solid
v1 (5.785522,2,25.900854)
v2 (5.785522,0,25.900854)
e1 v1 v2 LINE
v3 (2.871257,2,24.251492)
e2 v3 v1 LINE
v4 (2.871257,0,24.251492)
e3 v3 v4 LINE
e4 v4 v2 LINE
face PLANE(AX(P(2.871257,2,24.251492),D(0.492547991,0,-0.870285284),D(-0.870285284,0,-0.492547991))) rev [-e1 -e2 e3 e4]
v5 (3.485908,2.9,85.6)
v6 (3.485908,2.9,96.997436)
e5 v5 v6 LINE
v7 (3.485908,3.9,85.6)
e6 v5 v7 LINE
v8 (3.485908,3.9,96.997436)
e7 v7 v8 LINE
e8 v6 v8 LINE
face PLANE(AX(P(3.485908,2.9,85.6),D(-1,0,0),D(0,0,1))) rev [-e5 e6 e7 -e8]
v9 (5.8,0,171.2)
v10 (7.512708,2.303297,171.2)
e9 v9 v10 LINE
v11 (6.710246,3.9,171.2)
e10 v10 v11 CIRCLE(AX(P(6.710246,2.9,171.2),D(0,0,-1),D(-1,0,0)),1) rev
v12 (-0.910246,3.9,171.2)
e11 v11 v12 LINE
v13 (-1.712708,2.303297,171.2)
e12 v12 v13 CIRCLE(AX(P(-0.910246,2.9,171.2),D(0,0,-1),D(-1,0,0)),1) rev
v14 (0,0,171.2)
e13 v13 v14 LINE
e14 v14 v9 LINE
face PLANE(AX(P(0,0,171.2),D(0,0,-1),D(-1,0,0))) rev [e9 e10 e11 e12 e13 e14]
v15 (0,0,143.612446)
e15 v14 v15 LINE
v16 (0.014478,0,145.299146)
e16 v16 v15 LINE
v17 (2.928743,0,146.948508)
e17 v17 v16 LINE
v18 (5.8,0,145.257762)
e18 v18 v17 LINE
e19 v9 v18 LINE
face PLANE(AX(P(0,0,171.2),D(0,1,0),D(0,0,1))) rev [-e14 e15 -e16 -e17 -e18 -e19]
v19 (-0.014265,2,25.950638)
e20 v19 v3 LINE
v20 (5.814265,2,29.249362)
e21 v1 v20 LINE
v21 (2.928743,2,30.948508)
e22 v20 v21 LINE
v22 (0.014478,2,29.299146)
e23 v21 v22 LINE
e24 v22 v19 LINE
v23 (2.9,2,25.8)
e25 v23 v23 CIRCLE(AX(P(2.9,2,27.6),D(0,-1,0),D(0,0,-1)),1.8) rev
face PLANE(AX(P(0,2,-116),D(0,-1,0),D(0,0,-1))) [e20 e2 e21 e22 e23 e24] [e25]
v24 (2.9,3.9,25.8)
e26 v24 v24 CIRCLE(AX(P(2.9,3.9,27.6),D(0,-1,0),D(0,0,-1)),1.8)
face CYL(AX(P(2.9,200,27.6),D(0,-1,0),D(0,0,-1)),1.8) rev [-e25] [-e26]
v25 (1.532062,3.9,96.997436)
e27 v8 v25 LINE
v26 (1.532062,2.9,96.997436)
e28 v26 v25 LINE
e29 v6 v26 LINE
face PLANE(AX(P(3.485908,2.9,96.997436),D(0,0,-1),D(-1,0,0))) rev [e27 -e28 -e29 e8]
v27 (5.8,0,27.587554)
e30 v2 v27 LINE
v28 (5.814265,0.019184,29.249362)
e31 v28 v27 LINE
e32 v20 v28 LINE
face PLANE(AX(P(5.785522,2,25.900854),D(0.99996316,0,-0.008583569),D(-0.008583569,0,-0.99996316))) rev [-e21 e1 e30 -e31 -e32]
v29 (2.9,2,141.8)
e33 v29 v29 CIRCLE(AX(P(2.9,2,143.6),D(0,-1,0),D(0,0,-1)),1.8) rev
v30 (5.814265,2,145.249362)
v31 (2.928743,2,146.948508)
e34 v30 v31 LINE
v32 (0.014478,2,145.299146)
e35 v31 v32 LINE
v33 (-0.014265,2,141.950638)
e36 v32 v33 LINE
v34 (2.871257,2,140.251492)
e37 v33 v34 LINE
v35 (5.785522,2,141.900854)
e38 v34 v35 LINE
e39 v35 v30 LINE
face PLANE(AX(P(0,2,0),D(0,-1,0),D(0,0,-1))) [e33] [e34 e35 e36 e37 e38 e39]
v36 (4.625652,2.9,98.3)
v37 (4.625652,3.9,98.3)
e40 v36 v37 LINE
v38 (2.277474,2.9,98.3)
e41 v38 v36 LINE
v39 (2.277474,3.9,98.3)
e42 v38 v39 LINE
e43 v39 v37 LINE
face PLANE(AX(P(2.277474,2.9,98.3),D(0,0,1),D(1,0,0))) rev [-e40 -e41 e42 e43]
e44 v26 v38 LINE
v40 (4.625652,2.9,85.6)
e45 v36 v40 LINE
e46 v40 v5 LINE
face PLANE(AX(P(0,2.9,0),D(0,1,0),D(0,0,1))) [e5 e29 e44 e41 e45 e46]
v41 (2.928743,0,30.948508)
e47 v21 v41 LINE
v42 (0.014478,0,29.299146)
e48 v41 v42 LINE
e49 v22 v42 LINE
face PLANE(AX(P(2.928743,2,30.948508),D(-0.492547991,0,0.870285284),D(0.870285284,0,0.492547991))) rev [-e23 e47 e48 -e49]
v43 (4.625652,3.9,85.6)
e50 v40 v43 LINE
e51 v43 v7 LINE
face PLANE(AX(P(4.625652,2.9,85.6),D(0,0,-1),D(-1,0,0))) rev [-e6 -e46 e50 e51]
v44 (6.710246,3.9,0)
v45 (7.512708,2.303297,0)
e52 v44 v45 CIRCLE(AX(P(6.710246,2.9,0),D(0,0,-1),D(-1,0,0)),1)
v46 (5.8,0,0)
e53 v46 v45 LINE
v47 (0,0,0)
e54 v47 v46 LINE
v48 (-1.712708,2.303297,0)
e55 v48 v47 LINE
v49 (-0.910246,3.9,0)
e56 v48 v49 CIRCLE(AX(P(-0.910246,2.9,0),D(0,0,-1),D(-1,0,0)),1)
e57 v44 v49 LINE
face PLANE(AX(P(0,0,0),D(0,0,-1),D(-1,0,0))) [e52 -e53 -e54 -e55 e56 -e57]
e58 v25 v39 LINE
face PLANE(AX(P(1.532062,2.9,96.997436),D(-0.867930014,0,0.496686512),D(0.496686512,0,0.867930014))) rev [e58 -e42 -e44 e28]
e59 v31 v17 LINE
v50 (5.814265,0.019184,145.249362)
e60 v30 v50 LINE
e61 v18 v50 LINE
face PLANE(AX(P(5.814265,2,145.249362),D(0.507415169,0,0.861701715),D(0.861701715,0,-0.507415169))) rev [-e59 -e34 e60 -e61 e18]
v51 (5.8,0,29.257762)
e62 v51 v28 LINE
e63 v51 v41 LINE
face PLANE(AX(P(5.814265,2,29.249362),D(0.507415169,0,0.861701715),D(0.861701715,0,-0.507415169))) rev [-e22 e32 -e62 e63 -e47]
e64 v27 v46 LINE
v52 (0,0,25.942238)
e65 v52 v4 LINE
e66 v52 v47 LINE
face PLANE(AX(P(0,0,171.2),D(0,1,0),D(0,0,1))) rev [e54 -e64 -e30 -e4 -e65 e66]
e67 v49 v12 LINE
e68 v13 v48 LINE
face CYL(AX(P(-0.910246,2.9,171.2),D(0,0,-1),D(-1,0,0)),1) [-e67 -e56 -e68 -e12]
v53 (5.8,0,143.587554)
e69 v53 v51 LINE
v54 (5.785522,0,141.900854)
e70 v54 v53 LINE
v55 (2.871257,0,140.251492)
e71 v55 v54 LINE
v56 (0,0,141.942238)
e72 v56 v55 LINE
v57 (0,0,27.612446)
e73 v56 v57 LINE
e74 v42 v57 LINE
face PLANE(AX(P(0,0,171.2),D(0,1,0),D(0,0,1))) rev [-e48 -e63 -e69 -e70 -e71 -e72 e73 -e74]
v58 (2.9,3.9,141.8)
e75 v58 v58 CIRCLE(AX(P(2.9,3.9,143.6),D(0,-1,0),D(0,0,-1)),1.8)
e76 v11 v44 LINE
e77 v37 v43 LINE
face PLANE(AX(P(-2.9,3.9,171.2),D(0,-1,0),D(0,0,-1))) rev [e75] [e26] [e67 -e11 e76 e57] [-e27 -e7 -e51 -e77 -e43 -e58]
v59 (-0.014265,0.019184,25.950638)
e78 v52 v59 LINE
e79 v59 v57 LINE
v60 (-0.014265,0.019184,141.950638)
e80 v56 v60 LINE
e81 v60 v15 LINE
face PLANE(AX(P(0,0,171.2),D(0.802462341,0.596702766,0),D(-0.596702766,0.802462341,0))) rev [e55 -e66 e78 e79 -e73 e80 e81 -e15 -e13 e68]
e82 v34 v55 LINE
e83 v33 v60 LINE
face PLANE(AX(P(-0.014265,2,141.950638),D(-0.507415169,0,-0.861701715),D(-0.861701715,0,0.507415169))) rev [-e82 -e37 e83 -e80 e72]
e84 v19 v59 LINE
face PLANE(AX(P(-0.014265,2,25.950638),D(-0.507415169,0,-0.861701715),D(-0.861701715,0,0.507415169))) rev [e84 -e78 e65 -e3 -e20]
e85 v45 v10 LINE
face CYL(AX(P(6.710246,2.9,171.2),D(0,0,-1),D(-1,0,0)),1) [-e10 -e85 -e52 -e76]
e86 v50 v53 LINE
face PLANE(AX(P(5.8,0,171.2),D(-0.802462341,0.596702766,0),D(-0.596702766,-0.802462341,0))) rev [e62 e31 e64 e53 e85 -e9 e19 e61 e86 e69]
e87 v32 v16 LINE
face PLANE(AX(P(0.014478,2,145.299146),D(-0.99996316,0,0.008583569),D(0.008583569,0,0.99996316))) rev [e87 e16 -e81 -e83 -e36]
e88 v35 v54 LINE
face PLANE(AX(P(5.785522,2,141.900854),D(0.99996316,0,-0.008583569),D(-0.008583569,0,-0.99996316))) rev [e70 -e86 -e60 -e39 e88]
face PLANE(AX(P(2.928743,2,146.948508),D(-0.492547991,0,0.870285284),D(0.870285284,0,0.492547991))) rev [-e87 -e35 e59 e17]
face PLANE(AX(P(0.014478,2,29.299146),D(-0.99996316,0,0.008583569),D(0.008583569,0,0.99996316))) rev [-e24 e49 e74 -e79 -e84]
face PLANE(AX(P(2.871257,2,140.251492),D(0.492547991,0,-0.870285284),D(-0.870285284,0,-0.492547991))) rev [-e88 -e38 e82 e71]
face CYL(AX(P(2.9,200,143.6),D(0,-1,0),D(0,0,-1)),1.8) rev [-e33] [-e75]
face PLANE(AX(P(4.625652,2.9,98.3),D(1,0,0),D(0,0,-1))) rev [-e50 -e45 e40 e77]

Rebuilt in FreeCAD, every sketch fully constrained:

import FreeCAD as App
import Part
import Sketcher
from FreeCAD import Vector


def edges_at(feature, points):
    """Names of the edges that pass closest to the given points."""
    edges = feature.Shape.Edges
    near = lambda p: min(range(len(edges)), key=lambda i: edges[i].distToShape(Part.Vertex(*p))[0])
    return sorted({f"Edge{near(p) + 1}" for p in points})


def add_polygon(sketch, points):
    """Adds a closed chain of lines whose ends are joined by coincident constraints."""
    first, n = sketch.GeometryCount, len(points)
    for a, b in zip(points, points[1:] + points[:1]):
        sketch.addGeometry(Part.LineSegment(App.Vector(*a, 0), App.Vector(*b, 0)), False)
    for i in range(n):
        sketch.addConstraint(Sketcher.Constraint("Coincident", first + i, 2, first + (i + 1) % n, 1))

doc = App.newDocument("Part")
params = doc.addObject("Spreadsheet::Sheet", "Params")
for row, (alias, value) in enumerate([
    ("sketch1_width", "5.8 mm"),
    ("sketch1_width2", "11.6 mm"),
    ("pad1_length", "171.2 mm"),
    ("fillet_radius", "1 mm"),
    ("sketch2_diameter", "3.6 mm"),
    ("pocket1_length", "200 mm"),
    ("pocket2_length", "2 mm"),
    ("linearpattern_pitch", "116 mm"),
    ("sketch4_height", "12.7 mm"),
    ("pocket3_length", "1 mm"),
], start=1):
    params.set(f"A{row}", alias)
    params.set(f"B{row}", "=" + value)
    params.setAlias(f"B{row}", alias)

body = doc.addObject("PartDesign::Body", "Body")

# Sketch on XY plane
sketch1 = doc.addObject("Sketcher::SketchObject", "Sketch")
body.addObject(sketch1)
sketch1.AttachmentSupport = (doc.XY_Plane, [""])
sketch1.MapMode = "FlatFace"
add_polygon(sketch1, [(0, 0), (5.8, 0), (8.7, 3.9), (-2.9, 3.9)])  # lines 0-3
sketch1.addConstraint([
    Sketcher.Constraint("Horizontal", 0),
    Sketcher.Constraint("Horizontal", 2),
    Sketcher.Constraint("Coincident", 3, 2, -1, 1),
    Sketcher.Constraint("Equal", 1, 3),
    Sketcher.Constraint("DistanceX", 0, 1, 0, 2, 5.8),
    Sketcher.Constraint("DistanceX", 2, 2, 2, 1, 11.6),
    Sketcher.Constraint("DistanceY", -1, 1, 1, 2, 3.9),
])
sketch1.setExpression("Constraints[8]", "Params.sketch1_width")
sketch1.setExpression("Constraints[9]", "Params.sketch1_width2")
pad1 = doc.addObject("PartDesign::Pad", "Pad")
body.addObject(pad1)
pad1.Profile = sketch1
pad1.setExpression("Length", "Params.pad1_length")
doc.recompute()

fillet = doc.addObject("PartDesign::Fillet", "Fillet")
body.addObject(fillet)
fillet.Base = (pad1, edges_at(pad1, [(-2.9, 3.9, 85.6), (8.7, 3.9, 85.6)]))
fillet.setExpression("Radius", "Params.fillet_radius")

# Sketch on XZ plane
sketch2 = doc.addObject("Sketcher::SketchObject", "Sketch001")
body.addObject(sketch2)
sketch2.AttachmentSupport = (doc.XZ_Plane, [""])
sketch2.MapMode = "FlatFace"
sketch2.addGeometry(Part.Circle(Vector(2.9, 143.6, 0), Vector(0, 0, 1), 1.8), False)
sketch2.addConstraint([
    Sketcher.Constraint("Diameter", 0, 3.6),
    Sketcher.Constraint("DistanceX", -1, 1, 0, 3, 2.9),
    Sketcher.Constraint("DistanceY", -1, 1, 0, 3, 143.6),
])
sketch2.setExpression("Constraints[0]", "Params.sketch2_diameter")
pocket1 = doc.addObject("PartDesign::Pocket", "Pocket")
body.addObject(pocket1)
pocket1.Profile = sketch2
pocket1.setExpression("Length", "Params.pocket1_length")

# Sketch on XZ plane
sketch3 = doc.addObject("Sketcher::SketchObject", "Sketch002")
body.addObject(sketch3)
sketch3.AttachmentSupport = (doc.XZ_Plane, [""])
sketch3.MapMode = "FlatFace"
add_polygon(sketch3, [(2.928743, 146.948508), (0.014478, 145.299146), (-0.014265, 141.950638), (2.871257, 140.251492), (5.785522, 141.900854), (5.814265, 145.249362)])  # lines 0-5
sketch3.addConstraint([
    Sketcher.Constraint("Parallel", 0, 3),
    Sketcher.Constraint("Parallel", 1, 4),
    Sketcher.Constraint("Parallel", 2, 5),
    Sketcher.Constraint("Equal", 0, 1),
    Sketcher.Constraint("Equal", 1, 2),
    Sketcher.Constraint("Equal", 2, 3),
    Sketcher.Constraint("Distance", 0, 3.348632),
    Sketcher.Constraint("DistanceX", -1, 1, 0, 2, 0.014478),
    Sketcher.Constraint("DistanceY", -1, 1, 1, 2, 141.950638),
    Sketcher.Constraint("DistanceY", -1, 1, 2, 2, 140.251492),
    Sketcher.Constraint("DistanceX", -1, 1, 3, 2, 5.785522),
    Sketcher.Constraint("DistanceY", -1, 1, 4, 2, 145.249362),
])
pocket2 = doc.addObject("PartDesign::Pocket", "Pocket001")
body.addObject(pocket2)
pocket2.Profile = sketch3
pocket2.setExpression("Length", "Params.pocket2_length")
doc.recompute()

linearpattern = doc.addObject("PartDesign::LinearPattern", "LinearPattern")
body.addObject(linearpattern)
linearpattern.Originals = [pocket1, pocket2]
linearpattern.Direction = (doc.Z_Axis, [""])
linearpattern.Mode = "offset"
linearpattern.setExpression("Offset", "Params.linearpattern_pitch")
linearpattern.Occurrences = 3
linearpattern.Reversed = True
body.Tip = linearpattern

# Sketch on XZ plane
sketch4 = doc.addObject("Sketcher::SketchObject", "Sketch003")
body.addObject(sketch4)
sketch4.AttachmentSupport = (doc.XZ_Plane, [""])
sketch4.MapMode = "FlatFace"
sketch4.AttachmentOffset = App.Placement(Vector(0, 0, -3.9), App.Rotation())
add_polygon(sketch4, [(2.277474, 98.3), (4.625652, 98.3), (4.625652, 85.6), (3.485908, 85.6), (3.485908, 96.997436), (1.532062, 96.997436)])  # lines 0-5
sketch4.addConstraint([
    Sketcher.Constraint("Horizontal", 0),
    Sketcher.Constraint("Vertical", 1),
    Sketcher.Constraint("Horizontal", 2),
    Sketcher.Constraint("Vertical", 3),
    Sketcher.Constraint("Horizontal", 4),
    Sketcher.Constraint("DistanceY", 1, 2, 1, 1, 12.7),
    Sketcher.Constraint("DistanceY", -1, 1, 0, 2, 98.3),
    Sketcher.Constraint("Distance", 5, 1.500771),
    Sketcher.Constraint("DistanceX", 0, 1, 0, 2, 2.348177),
    Sketcher.Constraint("DistanceX", 2, 2, 2, 1, 1.139744),
    Sketcher.Constraint("DistanceX", 4, 2, 4, 1, 1.953846),
    Sketcher.Constraint("DistanceX", -1, 1, 0, 2, 4.625652),
])
sketch4.setExpression("Constraints[11]", "Params.sketch4_height")
pocket3 = doc.addObject("PartDesign::Pocket", "Pocket002")
body.addObject(pocket3)
pocket3.Profile = sketch4
pocket3.setExpression("Length", "Params.pocket3_length")
pocket3.Reversed = True

doc.recompute()
